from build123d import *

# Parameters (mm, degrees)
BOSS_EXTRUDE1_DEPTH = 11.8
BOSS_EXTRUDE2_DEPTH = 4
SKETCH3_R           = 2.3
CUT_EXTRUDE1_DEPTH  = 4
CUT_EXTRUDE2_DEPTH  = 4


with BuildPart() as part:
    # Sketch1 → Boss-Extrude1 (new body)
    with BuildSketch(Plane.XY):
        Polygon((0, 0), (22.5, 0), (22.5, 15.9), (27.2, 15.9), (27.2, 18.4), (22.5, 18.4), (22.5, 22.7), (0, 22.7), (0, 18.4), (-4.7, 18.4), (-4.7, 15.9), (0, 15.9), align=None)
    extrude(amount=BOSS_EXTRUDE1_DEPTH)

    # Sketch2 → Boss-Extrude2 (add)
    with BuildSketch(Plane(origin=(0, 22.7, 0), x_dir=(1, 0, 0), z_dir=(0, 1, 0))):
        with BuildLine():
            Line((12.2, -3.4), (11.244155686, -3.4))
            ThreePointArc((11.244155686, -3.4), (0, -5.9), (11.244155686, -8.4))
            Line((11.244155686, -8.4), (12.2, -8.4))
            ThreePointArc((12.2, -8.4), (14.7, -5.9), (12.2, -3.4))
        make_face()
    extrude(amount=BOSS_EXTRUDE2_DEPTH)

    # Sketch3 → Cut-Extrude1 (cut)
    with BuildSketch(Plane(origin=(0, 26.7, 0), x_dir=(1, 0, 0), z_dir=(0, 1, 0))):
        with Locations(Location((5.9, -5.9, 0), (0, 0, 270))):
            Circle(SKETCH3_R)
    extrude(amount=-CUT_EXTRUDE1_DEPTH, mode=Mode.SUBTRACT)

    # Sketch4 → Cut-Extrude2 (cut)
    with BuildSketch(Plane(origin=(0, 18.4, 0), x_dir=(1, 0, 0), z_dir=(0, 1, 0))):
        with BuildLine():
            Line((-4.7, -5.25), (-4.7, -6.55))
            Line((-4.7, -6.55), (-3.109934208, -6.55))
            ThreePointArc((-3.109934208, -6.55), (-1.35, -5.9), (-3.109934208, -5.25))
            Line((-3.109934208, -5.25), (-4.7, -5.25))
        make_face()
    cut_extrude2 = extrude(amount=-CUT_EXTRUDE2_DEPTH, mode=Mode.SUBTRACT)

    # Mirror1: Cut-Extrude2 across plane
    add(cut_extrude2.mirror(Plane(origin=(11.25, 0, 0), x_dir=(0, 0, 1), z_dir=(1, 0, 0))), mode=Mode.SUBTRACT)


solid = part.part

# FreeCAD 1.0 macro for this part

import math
import FreeCAD as App
import Part
import Sketcher
from FreeCAD import Vector
Q = App.Units.Quantity

doc = App.newDocument("Part")
params = doc.addObject("Spreadsheet::Sheet", "Params")
for row, (alias, value) in enumerate([
    ("sketch1_width", "22.5 mm"),
    ("sketch1_width2", "4.7 mm"),
    ("sketch1_height", "15.9 mm"),
    ("sketch1_height2", "2.5 mm"),
    ("sketch1_height3", "4.3 mm"),
    ("pad1_length", "11.8 mm"),
    ("sketch2_radius", "5.9 mm"),
    ("sketch2_radius2", "2.5 mm"),
    ("pad2_length", "4 mm"),
    ("sketch3_diameter", "4.6 mm"),
    ("pocket1_length", "4 mm"),
    ("sketch4_radius", "1 mm"),
    ("sketch4_height", "1.3 mm"),
    ("pocket2_length", "4 mm"),
], start=1):
    params.set(f"A{row}", alias)
    params.set(f"B{row}", "=" + value)
    params.setAlias(f"B{row}", alias)

body = doc.addObject("PartDesign::Body", "Body")

# Sketch on XY plane
sketch1 = body.newObject("Sketcher::SketchObject", "Sketch")
sketch1.AttachmentSupport = (doc.getObject("XY_Plane"), [""])
sketch1.MapMode = "FlatFace"
sketch1.addGeometry([
    Part.LineSegment(Vector(0, 0, 0), Vector(22.5, 0, 0)),  # 0
    Part.LineSegment(Vector(22.5, 0, 0), Vector(22.5, 15.9, 0)),  # 1
    Part.LineSegment(Vector(22.5, 15.9, 0), Vector(27.2, 15.9, 0)),  # 2
    Part.LineSegment(Vector(27.2, 15.9, 0), Vector(27.2, 18.4, 0)),  # 3
    Part.LineSegment(Vector(27.2, 18.4, 0), Vector(22.5, 18.4, 0)),  # 4
    Part.LineSegment(Vector(22.5, 18.4, 0), Vector(22.5, 22.7, 0)),  # 5
    Part.LineSegment(Vector(22.5, 22.7, 0), Vector(0, 22.7, 0)),  # 6
    Part.LineSegment(Vector(0, 22.7, 0), Vector(0, 18.4, 0)),  # 7
    Part.LineSegment(Vector(0, 18.4, 0), Vector(-4.7, 18.4, 0)),  # 8
    Part.LineSegment(Vector(-4.7, 18.4, 0), Vector(-4.7, 15.9, 0)),  # 9
    Part.LineSegment(Vector(-4.7, 15.9, 0), Vector(0, 15.9, 0)),  # 10
    Part.LineSegment(Vector(0, 15.9, 0), Vector(0, 0, 0)),  # 11
], False)
sketch1.addConstraint([
    Sketcher.Constraint("Coincident", 0, 2, 1, 1),
    Sketcher.Constraint("Coincident", 1, 2, 2, 1),
    Sketcher.Constraint("Coincident", 2, 2, 3, 1),
    Sketcher.Constraint("Coincident", 3, 2, 4, 1),
    Sketcher.Constraint("Coincident", 4, 2, 5, 1),
    Sketcher.Constraint("Coincident", 5, 2, 6, 1),
    Sketcher.Constraint("Coincident", 6, 2, 7, 1),
    Sketcher.Constraint("Coincident", 7, 2, 8, 1),
    Sketcher.Constraint("Coincident", 8, 2, 9, 1),
    Sketcher.Constraint("Coincident", 9, 2, 10, 1),
    Sketcher.Constraint("Coincident", 10, 2, 11, 1),
    Sketcher.Constraint("Coincident", 11, 2, 0, 1),
    Sketcher.Constraint("Horizontal", 0),
    Sketcher.Constraint("Vertical", 1),
    Sketcher.Constraint("Horizontal", 2),
    Sketcher.Constraint("Vertical", 3),
    Sketcher.Constraint("Horizontal", 4),
    Sketcher.Constraint("Vertical", 5),
    Sketcher.Constraint("Horizontal", 6),
    Sketcher.Constraint("Vertical", 7),
    Sketcher.Constraint("Horizontal", 8),
    Sketcher.Constraint("Vertical", 9),
    Sketcher.Constraint("Horizontal", 10),
    Sketcher.Constraint("Vertical", 11),
    Sketcher.Constraint("Coincident", 11, 2, -1, 1),
    Sketcher.Constraint("PointOnObject", 6, 2, -2),
    Sketcher.Constraint("Horizontal", 4, 2, 7, 2),
    Sketcher.Constraint("Horizontal", 2, 2, 9, 2),
    Sketcher.Constraint("Vertical", 1, 2, 4, 2),
    Sketcher.Constraint("Equal", 4, 8),
    Sketcher.Constraint("DistanceX", 0, 1, 0, 2, Q("22.5 mm")),
    Sketcher.Constraint("DistanceX", 2, 1, 2, 2, Q("4.7 mm")),
    Sketcher.Constraint("DistanceY", 1, 1, 1, 2, Q("15.9 mm")),
    Sketcher.Constraint("DistanceY", 3, 1, 3, 2, Q("2.5 mm")),
    Sketcher.Constraint("DistanceY", 5, 1, 5, 2, Q("4.3 mm")),
])
sketch1.setExpression("Constraints[30]", "Params.sketch1_width")
sketch1.setExpression("Constraints[31]", "Params.sketch1_width2")
sketch1.setExpression("Constraints[32]", "Params.sketch1_height")
sketch1.setExpression("Constraints[33]", "Params.sketch1_height2")
sketch1.setExpression("Constraints[34]", "Params.sketch1_height3")
pad1 = body.newObject("PartDesign::Pad", "Pad")
pad1.Profile = sketch1
pad1.setExpression("Length", "Params.pad1_length")

# Sketch on XZ plane
sketch2 = body.newObject("Sketcher::SketchObject", "Sketch001")
sketch2.AttachmentSupport = (doc.getObject("XZ_Plane"), [""])
sketch2.MapMode = "FlatFace"
sketch2.AttachmentOffset = App.Placement(Vector(0, 0, -22.7), App.Rotation())
sketch2.addGeometry([
    Part.LineSegment(Vector(12.2, 3.4, 0), Vector(11.2, 3.4, 0)),
    Part.ArcOfCircle(Part.Circle(Vector(5.9, 5.9, 0), Vector(0, 0, 1), 5.9), math.radians(25), math.radians(335)),
    Part.LineSegment(Vector(11.2, 8.4, 0), Vector(12.2, 8.4, 0)),
    Part.ArcOfCircle(Part.Circle(Vector(12.2, 5.9, 0), Vector(0, 0, 1), 2.5), math.radians(-90), math.radians(90)),
], False)
sketch2.addConstraint([
    Sketcher.Constraint("Coincident", 0, 2, 1, 2),
    Sketcher.Constraint("Coincident", 1, 1, 2, 1),
    Sketcher.Constraint("Tangent", 2, 2, 3, 2),
    Sketcher.Constraint("Tangent", 3, 1, 0, 1),
    Sketcher.Constraint("Horizontal", 0),
    Sketcher.Constraint("Horizontal", 2),
    Sketcher.Constraint("Horizontal", 1, 3, 3, 3),
    Sketcher.Constraint("Radius", 1, Q("5.9 mm")),
    Sketcher.Constraint("Radius", 3, Q("2.5 mm")),
    Sketcher.Constraint("DistanceX", -1, 1, 1, 3, Q("5.9 mm")),
    Sketcher.Constraint("DistanceY", -1, 1, 1, 3, Q("5.9 mm")),
    Sketcher.Constraint("DistanceX", -1, 1, 3, 3, Q("12.2 mm")),
])
sketch2.setExpression("Constraints[7]", "Params.sketch2_radius")
sketch2.setExpression("Constraints[8]", "Params.sketch2_radius2")
pad2 = body.newObject("PartDesign::Pad", "Pad001")
pad2.Profile = sketch2
pad2.setExpression("Length", "Params.pad2_length")
pad2.Reversed = True

# Sketch on XZ plane
sketch3 = body.newObject("Sketcher::SketchObject", "Sketch002")
sketch3.AttachmentSupport = (doc.getObject("XZ_Plane"), [""])
sketch3.MapMode = "FlatFace"
sketch3.AttachmentOffset = App.Placement(Vector(0, 0, -26.7), App.Rotation())
sketch3.addGeometry(Part.Circle(Vector(5.9, 5.9, 0), Vector(0, 0, 1), 2.3), False)
sketch3.addConstraint([
    Sketcher.Constraint("Diameter", 0, Q("4.6 mm")),
    Sketcher.Constraint("DistanceX", -1, 1, 0, 3, Q("5.9 mm")),
    Sketcher.Constraint("DistanceY", -1, 1, 0, 3, Q("5.9 mm")),
])
sketch3.setExpression("Constraints[0]", "Params.sketch3_diameter")
pocket1 = body.newObject("PartDesign::Pocket", "Pocket")
pocket1.Profile = sketch3
pocket1.setExpression("Length", "Params.pocket1_length")
pocket1.Reversed = True

# Sketch on XZ plane
sketch4 = body.newObject("Sketcher::SketchObject", "Sketch003")
sketch4.AttachmentSupport = (doc.getObject("XZ_Plane"), [""])
sketch4.MapMode = "FlatFace"
sketch4.AttachmentOffset = App.Placement(Vector(0, 0, -18.4), App.Rotation())
sketch4.addGeometry([
    Part.LineSegment(Vector(-4.7, 5.2, 0), Vector(-4.7, 6.5, 0)),
    Part.LineSegment(Vector(-4.7, 6.5, 0), Vector(-3.1, 6.5, 0)),
    Part.ArcOfCircle(Part.Circle(Vector(-2.4, 5.9, 0), Vector(0, 0, 1), 1), math.radians(-139), math.radians(139)),
    Part.LineSegment(Vector(-3.1, 5.2, 0), Vector(-4.7, 5.2, 0)),
], False)
sketch4.addConstraint([
    Sketcher.Constraint("Coincident", 0, 2, 1, 1),
    Sketcher.Constraint("Coincident", 1, 2, 2, 2),
    Sketcher.Constraint("Coincident", 2, 1, 3, 1),
    Sketcher.Constraint("Coincident", 3, 2, 0, 1),
    Sketcher.Constraint("Vertical", 0),
    Sketcher.Constraint("Horizontal", 1),
    Sketcher.Constraint("Horizontal", 3),
    Sketcher.Constraint("Vertical", 1, 2, 2, 1),
    Sketcher.Constraint("Radius", 2, Q("1 mm")),
    Sketcher.Constraint("DistanceY", 0, 1, 0, 2, Q("1.3 mm")),
    Sketcher.Constraint("DistanceY", -1, 1, 2, 3, Q("5.9 mm")),
    Sketcher.Constraint("DistanceX", 0, 2, -1, 1, Q("4.7 mm")),
    Sketcher.Constraint("DistanceX", 2, 3, -1, 1, Q("2.35 mm")),
])
sketch4.setExpression("Constraints[8]", "Params.sketch4_radius")
sketch4.setExpression("Constraints[9]", "Params.sketch4_height")
pocket2 = body.newObject("PartDesign::Pocket", "Pocket001")
pocket2.Profile = sketch4
pocket2.setExpression("Length", "Params.pocket2_length")
pocket2.Reversed = True
doc.recompute()

datumplane = body.newObject("PartDesign::Plane", "DatumPlane")
datumplane.AttachmentSupport = (doc.getObject("YZ_Plane"), [""])
datumplane.MapMode = "FlatFace"
datumplane.AttachmentOffset = App.Placement(Vector(0, 0, 11.25), App.Rotation())
mirrored = body.newObject("PartDesign::Mirrored", "Mirrored")
mirrored.Originals = [pocket2]
mirrored.MirrorPlane = (datumplane, [""])
body.Tip = mirrored

doc.recompute()
